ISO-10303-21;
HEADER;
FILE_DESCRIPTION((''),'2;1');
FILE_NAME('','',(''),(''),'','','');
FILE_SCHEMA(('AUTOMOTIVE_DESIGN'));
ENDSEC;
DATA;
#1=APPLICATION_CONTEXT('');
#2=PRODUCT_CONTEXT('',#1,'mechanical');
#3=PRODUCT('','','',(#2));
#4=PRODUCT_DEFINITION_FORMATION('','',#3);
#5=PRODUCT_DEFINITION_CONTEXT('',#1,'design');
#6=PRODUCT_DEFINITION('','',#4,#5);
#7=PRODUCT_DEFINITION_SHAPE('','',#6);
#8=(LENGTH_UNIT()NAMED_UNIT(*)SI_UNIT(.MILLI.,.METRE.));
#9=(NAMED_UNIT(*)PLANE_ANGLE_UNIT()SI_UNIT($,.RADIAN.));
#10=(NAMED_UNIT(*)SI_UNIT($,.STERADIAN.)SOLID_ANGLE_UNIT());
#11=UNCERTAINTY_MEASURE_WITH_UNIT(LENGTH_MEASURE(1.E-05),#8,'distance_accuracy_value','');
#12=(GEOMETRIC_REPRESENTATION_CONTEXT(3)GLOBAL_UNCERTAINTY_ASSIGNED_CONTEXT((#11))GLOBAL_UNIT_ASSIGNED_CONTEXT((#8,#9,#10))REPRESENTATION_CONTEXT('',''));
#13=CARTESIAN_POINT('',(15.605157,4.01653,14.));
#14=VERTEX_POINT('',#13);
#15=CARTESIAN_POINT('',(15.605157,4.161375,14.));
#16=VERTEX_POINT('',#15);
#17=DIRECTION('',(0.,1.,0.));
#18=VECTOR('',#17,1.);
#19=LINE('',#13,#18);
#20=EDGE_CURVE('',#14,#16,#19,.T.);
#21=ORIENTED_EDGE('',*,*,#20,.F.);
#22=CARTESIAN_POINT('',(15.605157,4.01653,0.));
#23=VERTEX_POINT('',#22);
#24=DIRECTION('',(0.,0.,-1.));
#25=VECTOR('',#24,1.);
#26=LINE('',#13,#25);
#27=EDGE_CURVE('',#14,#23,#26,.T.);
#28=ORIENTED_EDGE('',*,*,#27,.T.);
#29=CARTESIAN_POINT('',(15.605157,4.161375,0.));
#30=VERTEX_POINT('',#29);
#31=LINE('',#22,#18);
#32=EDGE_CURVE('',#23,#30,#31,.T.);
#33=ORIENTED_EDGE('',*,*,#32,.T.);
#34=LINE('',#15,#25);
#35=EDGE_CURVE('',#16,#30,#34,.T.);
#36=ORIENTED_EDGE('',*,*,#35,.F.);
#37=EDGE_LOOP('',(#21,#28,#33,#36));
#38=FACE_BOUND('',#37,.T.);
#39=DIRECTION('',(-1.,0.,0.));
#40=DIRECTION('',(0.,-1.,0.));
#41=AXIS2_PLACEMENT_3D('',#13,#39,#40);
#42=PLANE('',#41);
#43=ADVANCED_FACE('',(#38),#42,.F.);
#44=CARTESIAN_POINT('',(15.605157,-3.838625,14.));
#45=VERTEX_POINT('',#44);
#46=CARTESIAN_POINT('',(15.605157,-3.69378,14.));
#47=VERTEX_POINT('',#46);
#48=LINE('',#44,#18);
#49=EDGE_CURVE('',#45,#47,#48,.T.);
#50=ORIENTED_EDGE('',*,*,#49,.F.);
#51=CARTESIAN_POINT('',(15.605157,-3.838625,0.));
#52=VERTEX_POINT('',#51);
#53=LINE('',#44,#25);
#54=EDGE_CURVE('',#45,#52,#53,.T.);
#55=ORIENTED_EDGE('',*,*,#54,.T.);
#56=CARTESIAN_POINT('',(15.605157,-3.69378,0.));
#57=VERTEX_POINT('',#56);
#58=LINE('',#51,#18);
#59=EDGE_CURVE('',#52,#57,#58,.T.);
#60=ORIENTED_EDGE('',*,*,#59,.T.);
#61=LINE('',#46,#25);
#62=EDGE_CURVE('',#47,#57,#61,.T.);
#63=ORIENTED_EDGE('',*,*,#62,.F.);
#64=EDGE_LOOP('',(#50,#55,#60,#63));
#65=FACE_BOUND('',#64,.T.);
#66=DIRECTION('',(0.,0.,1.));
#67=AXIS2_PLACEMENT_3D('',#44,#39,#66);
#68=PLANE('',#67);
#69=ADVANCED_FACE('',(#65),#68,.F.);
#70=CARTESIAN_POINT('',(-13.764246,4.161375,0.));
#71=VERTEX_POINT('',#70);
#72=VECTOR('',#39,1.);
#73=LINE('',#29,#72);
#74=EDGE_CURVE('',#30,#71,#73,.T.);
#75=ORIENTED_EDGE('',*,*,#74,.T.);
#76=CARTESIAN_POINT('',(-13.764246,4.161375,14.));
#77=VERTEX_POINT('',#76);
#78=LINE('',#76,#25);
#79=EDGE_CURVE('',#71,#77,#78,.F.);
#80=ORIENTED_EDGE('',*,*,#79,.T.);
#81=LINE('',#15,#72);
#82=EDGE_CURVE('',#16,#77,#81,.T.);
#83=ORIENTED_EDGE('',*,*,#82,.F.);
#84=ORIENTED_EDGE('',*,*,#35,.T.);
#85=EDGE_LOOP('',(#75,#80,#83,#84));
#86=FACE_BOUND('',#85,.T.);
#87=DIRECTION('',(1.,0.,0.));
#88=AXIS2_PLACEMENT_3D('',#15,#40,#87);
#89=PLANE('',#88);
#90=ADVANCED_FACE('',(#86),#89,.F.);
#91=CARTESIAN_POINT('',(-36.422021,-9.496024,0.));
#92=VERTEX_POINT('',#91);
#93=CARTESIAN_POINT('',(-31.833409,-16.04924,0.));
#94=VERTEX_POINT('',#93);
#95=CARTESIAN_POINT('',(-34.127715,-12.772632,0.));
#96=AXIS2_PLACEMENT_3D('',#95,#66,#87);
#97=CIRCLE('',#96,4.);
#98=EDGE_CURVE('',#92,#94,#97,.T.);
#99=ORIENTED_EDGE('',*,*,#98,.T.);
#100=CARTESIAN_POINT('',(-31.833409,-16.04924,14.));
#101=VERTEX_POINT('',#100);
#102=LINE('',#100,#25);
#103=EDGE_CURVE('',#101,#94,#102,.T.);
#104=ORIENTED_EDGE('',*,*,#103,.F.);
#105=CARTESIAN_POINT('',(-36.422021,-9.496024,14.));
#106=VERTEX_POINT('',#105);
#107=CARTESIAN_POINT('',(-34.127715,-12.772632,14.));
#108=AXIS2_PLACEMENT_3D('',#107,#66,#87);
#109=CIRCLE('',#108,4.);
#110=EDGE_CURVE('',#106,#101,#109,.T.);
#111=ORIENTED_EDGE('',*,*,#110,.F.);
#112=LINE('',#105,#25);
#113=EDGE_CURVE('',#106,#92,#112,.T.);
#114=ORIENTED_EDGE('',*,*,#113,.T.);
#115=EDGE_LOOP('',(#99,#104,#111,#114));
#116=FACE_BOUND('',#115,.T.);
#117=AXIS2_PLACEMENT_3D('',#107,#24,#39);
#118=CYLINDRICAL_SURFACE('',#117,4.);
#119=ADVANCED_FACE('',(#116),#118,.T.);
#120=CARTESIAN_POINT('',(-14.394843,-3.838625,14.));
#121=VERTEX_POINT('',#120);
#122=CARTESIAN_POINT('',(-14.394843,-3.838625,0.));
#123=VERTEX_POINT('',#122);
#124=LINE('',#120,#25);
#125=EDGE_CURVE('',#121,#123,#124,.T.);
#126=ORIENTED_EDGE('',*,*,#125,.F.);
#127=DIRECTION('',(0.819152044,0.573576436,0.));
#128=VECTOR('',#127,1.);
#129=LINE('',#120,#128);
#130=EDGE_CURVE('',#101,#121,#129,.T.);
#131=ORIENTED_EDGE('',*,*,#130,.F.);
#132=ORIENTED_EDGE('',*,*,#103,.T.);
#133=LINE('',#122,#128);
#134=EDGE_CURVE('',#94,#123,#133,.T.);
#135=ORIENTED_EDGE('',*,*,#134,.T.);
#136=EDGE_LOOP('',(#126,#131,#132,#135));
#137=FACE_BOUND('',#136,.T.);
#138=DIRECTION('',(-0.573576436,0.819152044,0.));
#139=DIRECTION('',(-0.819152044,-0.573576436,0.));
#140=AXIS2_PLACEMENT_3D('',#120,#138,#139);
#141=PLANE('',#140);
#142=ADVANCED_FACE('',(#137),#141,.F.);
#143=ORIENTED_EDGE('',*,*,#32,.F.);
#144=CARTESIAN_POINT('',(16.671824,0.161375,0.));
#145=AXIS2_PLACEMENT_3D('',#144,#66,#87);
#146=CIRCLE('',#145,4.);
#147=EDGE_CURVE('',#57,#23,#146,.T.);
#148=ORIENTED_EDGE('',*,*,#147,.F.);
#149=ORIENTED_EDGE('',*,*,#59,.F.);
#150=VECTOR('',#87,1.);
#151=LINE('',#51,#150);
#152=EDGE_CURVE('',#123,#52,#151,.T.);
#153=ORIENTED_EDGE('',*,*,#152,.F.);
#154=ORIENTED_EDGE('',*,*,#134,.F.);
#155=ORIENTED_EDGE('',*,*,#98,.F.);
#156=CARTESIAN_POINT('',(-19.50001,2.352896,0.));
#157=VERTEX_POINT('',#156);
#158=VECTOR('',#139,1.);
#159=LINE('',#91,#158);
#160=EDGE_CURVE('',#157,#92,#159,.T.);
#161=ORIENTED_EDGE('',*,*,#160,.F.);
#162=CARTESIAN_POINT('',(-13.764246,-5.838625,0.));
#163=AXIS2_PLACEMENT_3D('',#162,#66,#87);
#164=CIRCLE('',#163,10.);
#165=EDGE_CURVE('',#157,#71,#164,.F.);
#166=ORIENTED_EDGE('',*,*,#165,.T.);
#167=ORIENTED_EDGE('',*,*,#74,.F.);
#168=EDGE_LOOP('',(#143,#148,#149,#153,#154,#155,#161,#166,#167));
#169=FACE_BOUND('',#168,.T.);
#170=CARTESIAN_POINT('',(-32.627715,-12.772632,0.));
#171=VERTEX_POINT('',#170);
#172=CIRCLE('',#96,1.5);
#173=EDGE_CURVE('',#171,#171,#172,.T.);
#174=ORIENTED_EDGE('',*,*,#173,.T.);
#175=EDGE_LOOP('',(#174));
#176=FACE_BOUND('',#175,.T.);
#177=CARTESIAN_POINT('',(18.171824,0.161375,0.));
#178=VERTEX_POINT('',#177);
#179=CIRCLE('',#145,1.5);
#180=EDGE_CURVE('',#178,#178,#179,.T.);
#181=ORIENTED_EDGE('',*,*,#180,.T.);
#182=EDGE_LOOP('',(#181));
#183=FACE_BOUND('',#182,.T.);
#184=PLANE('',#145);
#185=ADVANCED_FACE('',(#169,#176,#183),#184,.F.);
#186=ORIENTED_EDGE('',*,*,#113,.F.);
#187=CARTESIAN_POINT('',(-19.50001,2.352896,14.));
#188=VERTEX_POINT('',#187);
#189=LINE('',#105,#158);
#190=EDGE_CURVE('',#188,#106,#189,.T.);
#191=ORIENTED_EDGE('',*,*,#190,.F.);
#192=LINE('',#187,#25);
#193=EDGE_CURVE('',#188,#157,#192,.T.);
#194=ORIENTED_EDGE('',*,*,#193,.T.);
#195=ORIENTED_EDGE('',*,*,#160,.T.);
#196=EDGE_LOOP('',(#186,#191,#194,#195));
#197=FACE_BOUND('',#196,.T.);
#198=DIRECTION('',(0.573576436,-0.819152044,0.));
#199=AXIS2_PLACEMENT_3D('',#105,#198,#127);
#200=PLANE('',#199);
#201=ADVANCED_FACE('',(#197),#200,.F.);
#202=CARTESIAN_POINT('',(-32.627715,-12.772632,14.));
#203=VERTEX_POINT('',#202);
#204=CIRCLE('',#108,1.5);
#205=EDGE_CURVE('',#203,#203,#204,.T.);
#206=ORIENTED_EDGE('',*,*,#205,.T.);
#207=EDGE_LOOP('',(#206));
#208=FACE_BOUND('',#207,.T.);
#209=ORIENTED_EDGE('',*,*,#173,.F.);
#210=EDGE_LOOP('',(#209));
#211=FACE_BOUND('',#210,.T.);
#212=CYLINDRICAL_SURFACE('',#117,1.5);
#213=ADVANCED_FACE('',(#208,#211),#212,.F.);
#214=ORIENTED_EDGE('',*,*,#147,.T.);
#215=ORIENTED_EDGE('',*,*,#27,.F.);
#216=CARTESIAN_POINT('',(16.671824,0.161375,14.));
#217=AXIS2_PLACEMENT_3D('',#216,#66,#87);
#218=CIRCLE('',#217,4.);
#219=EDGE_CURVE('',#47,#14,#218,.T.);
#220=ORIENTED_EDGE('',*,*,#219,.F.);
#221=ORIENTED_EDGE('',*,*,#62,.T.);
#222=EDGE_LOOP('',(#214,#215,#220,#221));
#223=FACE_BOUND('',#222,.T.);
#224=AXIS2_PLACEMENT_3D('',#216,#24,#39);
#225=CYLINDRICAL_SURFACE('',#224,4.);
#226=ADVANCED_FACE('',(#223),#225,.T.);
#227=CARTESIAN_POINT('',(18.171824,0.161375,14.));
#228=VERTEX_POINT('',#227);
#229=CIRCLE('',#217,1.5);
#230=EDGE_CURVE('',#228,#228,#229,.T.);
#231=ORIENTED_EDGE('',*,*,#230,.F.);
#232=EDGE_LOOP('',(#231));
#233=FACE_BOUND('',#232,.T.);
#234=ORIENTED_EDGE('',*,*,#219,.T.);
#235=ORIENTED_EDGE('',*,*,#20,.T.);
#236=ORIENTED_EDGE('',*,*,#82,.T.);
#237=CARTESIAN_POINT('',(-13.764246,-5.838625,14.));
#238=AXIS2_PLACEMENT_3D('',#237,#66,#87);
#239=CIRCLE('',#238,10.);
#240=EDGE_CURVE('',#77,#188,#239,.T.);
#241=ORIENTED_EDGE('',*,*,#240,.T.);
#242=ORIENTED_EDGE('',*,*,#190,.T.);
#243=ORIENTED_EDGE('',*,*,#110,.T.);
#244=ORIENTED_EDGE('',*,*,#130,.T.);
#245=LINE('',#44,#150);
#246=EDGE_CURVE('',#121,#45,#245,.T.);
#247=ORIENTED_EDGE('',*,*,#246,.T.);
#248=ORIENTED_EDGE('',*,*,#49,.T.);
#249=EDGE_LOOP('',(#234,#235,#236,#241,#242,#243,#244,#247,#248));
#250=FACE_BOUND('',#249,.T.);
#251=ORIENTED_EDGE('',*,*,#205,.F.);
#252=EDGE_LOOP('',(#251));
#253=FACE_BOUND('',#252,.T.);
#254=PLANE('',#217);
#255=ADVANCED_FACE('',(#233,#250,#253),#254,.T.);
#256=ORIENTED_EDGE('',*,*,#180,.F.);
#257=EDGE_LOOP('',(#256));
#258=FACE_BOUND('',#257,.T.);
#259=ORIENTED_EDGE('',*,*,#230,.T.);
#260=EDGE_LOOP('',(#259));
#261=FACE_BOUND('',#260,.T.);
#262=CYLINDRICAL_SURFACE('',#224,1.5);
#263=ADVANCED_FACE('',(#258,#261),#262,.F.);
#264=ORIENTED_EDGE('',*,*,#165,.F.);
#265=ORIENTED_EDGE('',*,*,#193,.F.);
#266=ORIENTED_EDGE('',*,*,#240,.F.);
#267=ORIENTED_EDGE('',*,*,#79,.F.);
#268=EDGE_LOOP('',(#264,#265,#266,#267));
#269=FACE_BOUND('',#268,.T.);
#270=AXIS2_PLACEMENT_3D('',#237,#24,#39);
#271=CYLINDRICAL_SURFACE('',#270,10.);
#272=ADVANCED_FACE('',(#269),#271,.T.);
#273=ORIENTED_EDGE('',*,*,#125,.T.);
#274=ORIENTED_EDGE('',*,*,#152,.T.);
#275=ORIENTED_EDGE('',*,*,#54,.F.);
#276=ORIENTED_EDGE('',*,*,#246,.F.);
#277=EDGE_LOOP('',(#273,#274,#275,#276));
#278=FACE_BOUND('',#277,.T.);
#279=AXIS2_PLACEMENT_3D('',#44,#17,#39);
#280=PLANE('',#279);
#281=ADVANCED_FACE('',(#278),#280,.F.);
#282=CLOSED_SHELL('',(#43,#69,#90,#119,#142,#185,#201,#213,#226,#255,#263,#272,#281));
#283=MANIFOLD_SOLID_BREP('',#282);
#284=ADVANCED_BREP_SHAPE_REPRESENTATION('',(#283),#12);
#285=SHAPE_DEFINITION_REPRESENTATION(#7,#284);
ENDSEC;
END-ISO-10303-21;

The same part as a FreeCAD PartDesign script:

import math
import FreeCAD as App
import Part
import Sketcher
Q = App.Units.Quantity


def edges_at(feature, points):
    """Names of the edges that pass closest to the given points."""
    edges = feature.Shape.Edges
    near = lambda p: min(range(len(edges)), key=lambda i: edges[i].distToShape(Part.Vertex(*p))[0])
    return sorted({f"Edge{near(p) + 1}" for p in points})

doc = App.newDocument("Part")
body = doc.addObject("PartDesign::Body", "Body")

# Sketch on XY plane
sketch1 = body.newObject("Sketcher::SketchObject", "Sketch")
sketch1.AttachmentSupport = (doc.getObject("XY_Plane"), [""])
sketch1.MapMode = "FlatFace"
sketch1.addGeometry([
    Part.LineSegment(App.Vector(15.605157, 4.01653, 0), App.Vector(15.605157, 4.161375, 0)),  # 0
    Part.LineSegment(App.Vector(15.605157, 4.161375, 0), App.Vector(-16.917233, 4.161375, 0)),  # 1
    Part.LineSegment(App.Vector(-16.917233, 4.161375, 0), App.Vector(-36.422021, -9.496024, 0)),  # 2
    Part.ArcOfCircle(Part.Circle(App.Vector(-34.127715, -12.772632, 0), App.Vector(0, 0, 1), 4), math.radians(125), math.radians(305)),  # 3
    Part.LineSegment(App.Vector(-31.833409, -16.04924, 0), App.Vector(-14.394843, -3.838625, 0)),  # 4
    Part.LineSegment(App.Vector(-14.394843, -3.838625, 0), App.Vector(15.605157, -3.838625, 0)),  # 5
    Part.LineSegment(App.Vector(15.605157, -3.838625, 0), App.Vector(15.605157, -3.69378, 0)),  # 6
    Part.ArcOfCircle(Part.Circle(App.Vector(16.671824, 0.161375, 0), App.Vector(0, 0, 1), 4), math.radians(-105.46601), math.radians(105.46601)),  # 7
    Part.Circle(App.Vector(-34.127715, -12.772632, 0), App.Vector(0, 0, 1), 1.5),  # 8
    Part.Circle(App.Vector(16.671824, 0.161375, 0), App.Vector(0, 0, 1), 1.5),  # 9
], False)
sketch1.addConstraint([
    Sketcher.Constraint("Coincident", 0, 2, 1, 1),
    Sketcher.Constraint("Coincident", 1, 2, 2, 1),
    Sketcher.Constraint("Tangent", 2, 2, 3, 1),
    Sketcher.Constraint("Tangent", 3, 2, 4, 1),
    Sketcher.Constraint("Coincident", 4, 2, 5, 1),
    Sketcher.Constraint("Coincident", 5, 2, 6, 1),
    Sketcher.Constraint("Coincident", 6, 2, 7, 1),
    Sketcher.Constraint("Coincident", 7, 2, 0, 1),
    Sketcher.Constraint("Vertical", 0),
    Sketcher.Constraint("Horizontal", 1),
    Sketcher.Constraint("Horizontal", 5),
    Sketcher.Constraint("Vertical", 6),
    Sketcher.Constraint("Coincident", 8, 3, 3, 3),
    Sketcher.Constraint("Coincident", 9, 3, 7, 3),
    Sketcher.Constraint("Equal", 3, 7),
    Sketcher.Constraint("Equal", 8, 9),
    Sketcher.Constraint("Parallel", 2, 4),
    Sketcher.Constraint("Vertical", 0, 2, 5, 2),
    Sketcher.Constraint("Equal", 0, 6),
    Sketcher.Constraint("Diameter", 8, 3.0),
    Sketcher.Constraint("Radius", 3, 4.0),
    Sketcher.Constraint("DistanceX", 5, 1, 5, 2, 30.0),
    Sketcher.Constraint("Angle", 2, Q("-145 deg")),
    Sketcher.Constraint("DistanceY", 7, 3, 0, 2, 4.0),
    Sketcher.Constraint("DistanceY", 2, 2, 1, 2, 13.657399),
    Sketcher.Constraint("DistanceY", 0, 1, 0, 2, 0.144845),
    Sketcher.Constraint("DistanceX", 2, 2, -1, 1, 36.422021),
    Sketcher.Constraint("DistanceY", 3, 2, -1, 1, 16.04924),
])
pad1 = body.newObject("PartDesign::Pad", "Pad")
pad1.Profile = sketch1
pad1.Length = 14
doc.recompute()

fillet = body.newObject("PartDesign::Fillet", "Fillet")
fillet.Base = (pad1, edges_at(pad1, [(-16.917, 4.161, 7)]))
fillet.Radius = 10

doc.recompute()
